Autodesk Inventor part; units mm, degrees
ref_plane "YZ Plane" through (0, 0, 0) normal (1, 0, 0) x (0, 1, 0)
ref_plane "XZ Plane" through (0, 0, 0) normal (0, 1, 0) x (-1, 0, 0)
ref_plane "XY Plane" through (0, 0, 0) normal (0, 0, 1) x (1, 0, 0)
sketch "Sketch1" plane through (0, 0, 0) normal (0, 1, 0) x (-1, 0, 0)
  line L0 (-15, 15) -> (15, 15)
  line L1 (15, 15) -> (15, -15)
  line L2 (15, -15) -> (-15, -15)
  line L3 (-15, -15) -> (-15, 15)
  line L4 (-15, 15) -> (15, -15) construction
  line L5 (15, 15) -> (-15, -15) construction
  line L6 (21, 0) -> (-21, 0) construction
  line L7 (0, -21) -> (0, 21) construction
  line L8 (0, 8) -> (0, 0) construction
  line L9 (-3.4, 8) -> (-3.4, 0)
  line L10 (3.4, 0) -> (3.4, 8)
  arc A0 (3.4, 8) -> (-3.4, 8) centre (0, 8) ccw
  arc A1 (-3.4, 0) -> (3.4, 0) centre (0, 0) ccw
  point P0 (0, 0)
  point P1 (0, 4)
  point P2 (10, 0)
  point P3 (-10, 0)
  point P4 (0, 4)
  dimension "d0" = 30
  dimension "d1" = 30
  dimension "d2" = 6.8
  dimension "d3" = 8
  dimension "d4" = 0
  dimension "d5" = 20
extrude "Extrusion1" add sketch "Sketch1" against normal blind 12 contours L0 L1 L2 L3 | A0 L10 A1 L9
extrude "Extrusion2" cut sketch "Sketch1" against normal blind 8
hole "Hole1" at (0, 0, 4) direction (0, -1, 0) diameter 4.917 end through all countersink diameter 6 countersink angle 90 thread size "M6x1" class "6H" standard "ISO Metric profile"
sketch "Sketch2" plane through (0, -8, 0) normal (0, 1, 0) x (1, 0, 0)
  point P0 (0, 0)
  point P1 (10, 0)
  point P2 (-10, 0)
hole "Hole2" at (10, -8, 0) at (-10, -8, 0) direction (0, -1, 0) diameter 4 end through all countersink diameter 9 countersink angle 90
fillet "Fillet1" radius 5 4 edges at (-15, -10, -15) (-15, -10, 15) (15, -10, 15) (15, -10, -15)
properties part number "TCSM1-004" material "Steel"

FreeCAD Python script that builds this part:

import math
import FreeCAD as App
import Part
import Sketcher


def edges_at(feature, points):
    """Names of the edges that pass closest to the given points."""
    edges = feature.Shape.Edges
    near = lambda p: min(range(len(edges)), key=lambda i: edges[i].distToShape(Part.Vertex(*p))[0])
    return sorted({f"Edge{near(p) + 1}" for p in points})

doc = App.newDocument("Part")
body = doc.addObject("PartDesign::Body", "Body")

# Sketch on XZ plane
sketch1 = doc.addObject("Sketcher::SketchObject", "Sketch")
body.addObject(sketch1)
sketch1.AttachmentSupport = (doc.XZ_Plane, [""])
sketch1.MapMode = "FlatFace"
sketch1.addGeometry(Part.LineSegment(App.Vector(-15, 15, 0), App.Vector(15, 15, 0)), False)
sketch1.addGeometry(Part.LineSegment(App.Vector(15, 15, 0), App.Vector(15, -15, 0)), False)
sketch1.addGeometry(Part.LineSegment(App.Vector(15, -15, 0), App.Vector(-15, -15, 0)), False)
sketch1.addGeometry(Part.LineSegment(App.Vector(-15, -15, 0), App.Vector(-15, 15, 0)), False)
sketch1.addConstraint(Sketcher.Constraint("Coincident", 0, 2, 1, 1))
sketch1.addConstraint(Sketcher.Constraint("Coincident", 1, 2, 2, 1))
sketch1.addConstraint(Sketcher.Constraint("Coincident", 2, 2, 3, 1))
sketch1.addConstraint(Sketcher.Constraint("Coincident", 3, 2, 0, 1))
sketch1.addConstraint(Sketcher.Constraint("Horizontal", 0))
sketch1.addConstraint(Sketcher.Constraint("Vertical", 1))
sketch1.addConstraint(Sketcher.Constraint("Horizontal", 2))
sketch1.addConstraint(Sketcher.Constraint("Vertical", 3))
sketch1.addConstraint(Sketcher.Constraint("Symmetric", 0, 2, 2, 2, -1, 1))
sketch1.addConstraint(Sketcher.Constraint("Equal", 2, 1))
sketch1.addConstraint(Sketcher.Constraint("DistanceX", 0, 1, 0, 2, 30.0))
pad1 = doc.addObject("PartDesign::Pad", "Pad")
body.addObject(pad1)
pad1.Profile = sketch1
pad1.Length = 12

# Sketch on XZ plane
sketch2 = doc.addObject("Sketcher::SketchObject", "Sketch001")
body.addObject(sketch2)
sketch2.AttachmentSupport = (doc.XZ_Plane, [""])
sketch2.MapMode = "FlatFace"
sketch2.addGeometry(Part.LineSegment(App.Vector(-15, 15, 0), App.Vector(15, 15, 0)), False)
sketch2.addGeometry(Part.LineSegment(App.Vector(15, 15, 0), App.Vector(15, -15, 0)), False)
sketch2.addGeometry(Part.LineSegment(App.Vector(15, -15, 0), App.Vector(-15, -15, 0)), False)
sketch2.addGeometry(Part.LineSegment(App.Vector(-15, -15, 0), App.Vector(-15, 15, 0)), False)
sketch2.addGeometry(Part.LineSegment(App.Vector(3.4, 0, 0), App.Vector(3.4, 8, 0)), False)
sketch2.addGeometry(Part.ArcOfCircle(Part.Circle(App.Vector(0, 8, 0), App.Vector(0, 0, 1), 3.4), math.radians(0), math.radians(180)), False)
sketch2.addGeometry(Part.LineSegment(App.Vector(-3.4, 8, 0), App.Vector(-3.4, 0, 0)), False)
sketch2.addGeometry(Part.ArcOfCircle(Part.Circle(App.Vector(0, 0, 0), App.Vector(0, 0, 1), 3.4), math.radians(180), math.radians(360)), False)
sketch2.addConstraint(Sketcher.Constraint("Coincident", 0, 2, 1, 1))
sketch2.addConstraint(Sketcher.Constraint("Coincident", 1, 2, 2, 1))
sketch2.addConstraint(Sketcher.Constraint("Coincident", 2, 2, 3, 1))
sketch2.addConstraint(Sketcher.Constraint("Coincident", 3, 2, 0, 1))
sketch2.addConstraint(Sketcher.Constraint("Tangent", 4, 2, 5, 1))
sketch2.addConstraint(Sketcher.Constraint("Tangent", 5, 2, 6, 1))
sketch2.addConstraint(Sketcher.Constraint("Tangent", 6, 2, 7, 1))
sketch2.addConstraint(Sketcher.Constraint("Tangent", 7, 2, 4, 1))
sketch2.addConstraint(Sketcher.Constraint("Horizontal", 0))
sketch2.addConstraint(Sketcher.Constraint("Vertical", 1))
sketch2.addConstraint(Sketcher.Constraint("Horizontal", 2))
sketch2.addConstraint(Sketcher.Constraint("Vertical", 3))
sketch2.addConstraint(Sketcher.Constraint("Vertical", 4))
sketch2.addConstraint(Sketcher.Constraint("Vertical", 6))
sketch2.addConstraint(Sketcher.Constraint("Coincident", 7, 3, -1, 1))
sketch2.addConstraint(Sketcher.Constraint("Symmetric", 0, 2, 2, 2, -1, 1))
sketch2.addConstraint(Sketcher.Constraint("Equal", 2, 1))
sketch2.addConstraint(Sketcher.Constraint("Radius", 5, 3.4))
sketch2.addConstraint(Sketcher.Constraint("DistanceX", 0, 1, 0, 2, 30.0))
sketch2.addConstraint(Sketcher.Constraint("DistanceY", 4, 1, 4, 2, 8.0))
pocket1 = doc.addObject("PartDesign::Pocket", "Pocket")
body.addObject(pocket1)
pocket1.Profile = sketch2
pocket1.Length = 8
pocket1.Reversed = True

# Sketch on XZ plane
sketch3 = doc.addObject("Sketcher::SketchObject", "Sketch002")
body.addObject(sketch3)
sketch3.AttachmentSupport = (doc.XZ_Plane, [""])
sketch3.MapMode = "FlatFace"
sketch3.addGeometry(Part.Circle(App.Vector(0, 4, 0), App.Vector(0, 0, 1), 2.5), False)
sketch3.addConstraint(Sketcher.Constraint("PointOnObject", 0, 3, -2))
sketch3.addConstraint(Sketcher.Constraint("Diameter", 0, 4.917))
sketch3.addConstraint(Sketcher.Constraint("DistanceY", -1, 1, 0, 3, 4.0))
doc.recompute()
hole = doc.addObject("PartDesign::Hole", "Hole")
body.addObject(hole)
hole.Profile = sketch3
hole.ThreadType = "None"
hole.Diameter = 4.917
hole.DepthType = "ThroughAll"
hole.HoleCutType = "Countersink"
hole.HoleCutDiameter = 6
hole.HoleCutCountersinkAngle = 90
hole.Reversed = True

# Sketch on XZ plane
sketch4 = doc.addObject("Sketcher::SketchObject", "Sketch003")
body.addObject(sketch4)
sketch4.AttachmentSupport = (doc.XZ_Plane, [""])
sketch4.MapMode = "FlatFace"
sketch4.AttachmentOffset = App.Placement(App.Vector(0, 0, 8), App.Rotation())
sketch4.addGeometry(Part.Circle(App.Vector(10, 0, 0), App.Vector(0, 0, 1), 2), False)
sketch4.addGeometry(Part.Circle(App.Vector(-10, 0, 0), App.Vector(0, 0, 1), 2), False)
sketch4.addConstraint(Sketcher.Constraint("Equal", 0, 1))
sketch4.addConstraint(Sketcher.Constraint("Symmetric", 0, 3, 1, 3, -1, 1))
sketch4.addConstraint(Sketcher.Constraint("PointOnObject", 0, 3, -1))
sketch4.addConstraint(Sketcher.Constraint("Diameter", 0, 4.0))
sketch4.addConstraint(Sketcher.Constraint("DistanceX", -1, 1, 0, 3, 10.0))
doc.recompute()
hole2 = doc.addObject("PartDesign::Hole", "Hole001")
body.addObject(hole2)
hole2.Profile = sketch4
hole2.ThreadType = "None"
hole2.Diameter = 4
hole2.DepthType = "ThroughAll"
hole2.HoleCutType = "Countersink"
hole2.HoleCutDiameter = 9
hole2.HoleCutCountersinkAngle = 90
hole2.Reversed = True
doc.recompute()

fillet = doc.addObject("PartDesign::Fillet", "Fillet")
body.addObject(fillet)
fillet.Base = (hole2, edges_at(hole2, [
    (-15, -10, -15),
    (-15, -10, 15),
    (15, -10, 15),
    (15, -10, -15),
]))
fillet.Radius = 5

doc.recompute()
